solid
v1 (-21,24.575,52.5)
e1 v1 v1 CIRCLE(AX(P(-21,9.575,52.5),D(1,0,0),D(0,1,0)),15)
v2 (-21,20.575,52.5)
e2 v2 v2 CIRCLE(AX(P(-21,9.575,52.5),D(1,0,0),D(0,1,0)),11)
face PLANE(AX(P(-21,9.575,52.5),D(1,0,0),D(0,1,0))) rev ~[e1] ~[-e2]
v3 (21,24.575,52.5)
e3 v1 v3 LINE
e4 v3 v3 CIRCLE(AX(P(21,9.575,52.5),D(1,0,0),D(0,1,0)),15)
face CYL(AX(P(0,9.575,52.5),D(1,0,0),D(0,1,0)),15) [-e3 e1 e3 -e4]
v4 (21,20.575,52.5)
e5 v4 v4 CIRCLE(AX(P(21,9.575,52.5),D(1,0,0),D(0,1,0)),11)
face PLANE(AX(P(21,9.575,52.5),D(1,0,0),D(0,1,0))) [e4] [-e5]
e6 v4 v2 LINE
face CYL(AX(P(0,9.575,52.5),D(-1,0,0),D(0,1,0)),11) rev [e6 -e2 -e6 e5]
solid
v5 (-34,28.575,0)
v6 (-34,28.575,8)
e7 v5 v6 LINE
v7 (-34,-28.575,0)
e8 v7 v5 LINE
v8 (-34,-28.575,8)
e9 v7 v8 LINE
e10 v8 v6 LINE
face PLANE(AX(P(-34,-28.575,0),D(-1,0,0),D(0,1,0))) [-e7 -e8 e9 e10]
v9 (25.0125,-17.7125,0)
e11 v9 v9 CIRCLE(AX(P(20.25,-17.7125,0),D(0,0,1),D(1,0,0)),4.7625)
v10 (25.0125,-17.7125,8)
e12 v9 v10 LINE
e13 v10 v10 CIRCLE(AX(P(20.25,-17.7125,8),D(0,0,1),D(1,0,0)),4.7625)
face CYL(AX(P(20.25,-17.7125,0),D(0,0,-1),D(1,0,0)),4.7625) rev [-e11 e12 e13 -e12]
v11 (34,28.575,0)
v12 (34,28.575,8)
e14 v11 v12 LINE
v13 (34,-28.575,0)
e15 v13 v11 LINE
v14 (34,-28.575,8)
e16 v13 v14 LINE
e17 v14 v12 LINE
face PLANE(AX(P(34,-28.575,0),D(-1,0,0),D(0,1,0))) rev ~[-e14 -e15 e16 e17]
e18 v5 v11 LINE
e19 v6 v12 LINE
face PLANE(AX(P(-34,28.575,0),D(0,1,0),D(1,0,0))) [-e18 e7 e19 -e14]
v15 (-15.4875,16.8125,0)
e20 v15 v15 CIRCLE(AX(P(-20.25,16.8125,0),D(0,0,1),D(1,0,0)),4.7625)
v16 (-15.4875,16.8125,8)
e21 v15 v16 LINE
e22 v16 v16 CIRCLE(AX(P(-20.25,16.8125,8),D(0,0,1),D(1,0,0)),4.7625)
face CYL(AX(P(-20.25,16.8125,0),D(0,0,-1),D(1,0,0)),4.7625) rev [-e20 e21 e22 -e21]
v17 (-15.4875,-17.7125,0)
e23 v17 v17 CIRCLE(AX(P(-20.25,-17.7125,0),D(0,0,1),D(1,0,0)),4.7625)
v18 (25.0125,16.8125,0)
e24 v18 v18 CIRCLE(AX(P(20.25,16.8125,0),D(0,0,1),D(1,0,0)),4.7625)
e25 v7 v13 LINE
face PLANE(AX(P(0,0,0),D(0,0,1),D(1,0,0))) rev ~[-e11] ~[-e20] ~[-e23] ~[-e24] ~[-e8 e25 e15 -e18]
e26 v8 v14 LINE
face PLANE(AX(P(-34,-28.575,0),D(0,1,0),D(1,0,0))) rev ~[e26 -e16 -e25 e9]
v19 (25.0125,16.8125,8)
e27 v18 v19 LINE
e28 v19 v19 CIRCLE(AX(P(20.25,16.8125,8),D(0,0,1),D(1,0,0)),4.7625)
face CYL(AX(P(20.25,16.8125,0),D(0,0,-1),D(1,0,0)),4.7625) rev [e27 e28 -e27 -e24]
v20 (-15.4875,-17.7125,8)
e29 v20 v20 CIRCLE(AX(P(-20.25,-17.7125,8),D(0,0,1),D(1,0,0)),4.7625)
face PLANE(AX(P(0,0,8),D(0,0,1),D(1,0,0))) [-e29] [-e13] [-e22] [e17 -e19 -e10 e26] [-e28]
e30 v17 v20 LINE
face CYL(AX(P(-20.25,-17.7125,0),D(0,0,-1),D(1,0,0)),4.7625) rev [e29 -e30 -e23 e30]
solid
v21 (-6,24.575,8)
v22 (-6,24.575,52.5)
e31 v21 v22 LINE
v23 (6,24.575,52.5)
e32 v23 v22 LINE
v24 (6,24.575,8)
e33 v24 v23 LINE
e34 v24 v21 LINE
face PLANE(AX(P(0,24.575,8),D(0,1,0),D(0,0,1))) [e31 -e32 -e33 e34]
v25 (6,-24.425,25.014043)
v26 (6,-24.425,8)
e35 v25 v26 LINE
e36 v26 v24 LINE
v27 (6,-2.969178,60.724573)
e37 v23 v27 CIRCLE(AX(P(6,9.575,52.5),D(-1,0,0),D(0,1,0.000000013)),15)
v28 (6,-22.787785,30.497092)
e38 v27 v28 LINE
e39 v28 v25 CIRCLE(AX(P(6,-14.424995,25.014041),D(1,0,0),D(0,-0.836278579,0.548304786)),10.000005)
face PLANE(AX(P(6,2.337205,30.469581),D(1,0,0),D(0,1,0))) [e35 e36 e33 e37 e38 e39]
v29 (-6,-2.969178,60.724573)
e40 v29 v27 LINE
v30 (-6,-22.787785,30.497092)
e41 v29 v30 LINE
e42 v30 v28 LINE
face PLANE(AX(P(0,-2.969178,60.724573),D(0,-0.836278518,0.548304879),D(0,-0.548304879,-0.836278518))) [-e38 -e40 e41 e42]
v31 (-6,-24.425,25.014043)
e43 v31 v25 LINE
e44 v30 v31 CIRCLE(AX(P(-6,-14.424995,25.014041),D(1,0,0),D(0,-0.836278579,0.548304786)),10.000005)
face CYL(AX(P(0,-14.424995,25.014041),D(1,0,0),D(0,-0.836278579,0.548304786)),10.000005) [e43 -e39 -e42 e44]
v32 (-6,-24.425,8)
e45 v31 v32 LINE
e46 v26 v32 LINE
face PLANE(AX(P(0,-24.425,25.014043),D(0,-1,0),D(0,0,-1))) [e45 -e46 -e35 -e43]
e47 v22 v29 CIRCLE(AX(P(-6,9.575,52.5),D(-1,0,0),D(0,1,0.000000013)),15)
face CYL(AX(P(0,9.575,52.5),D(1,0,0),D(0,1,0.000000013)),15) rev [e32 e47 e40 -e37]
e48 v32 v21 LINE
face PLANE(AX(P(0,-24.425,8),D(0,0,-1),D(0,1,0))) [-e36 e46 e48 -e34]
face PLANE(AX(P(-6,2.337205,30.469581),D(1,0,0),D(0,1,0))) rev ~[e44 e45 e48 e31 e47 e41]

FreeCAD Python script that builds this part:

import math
import FreeCAD as App
import Part
import Sketcher

V = App.Vector

doc = App.newDocument("Part")
params = doc.addObject("Spreadsheet::Sheet", "Params")
for row, (alias, value) in enumerate([
    ("sketch1_width", "68 mm"),
    ("sketch1_height", "57.15 mm"),
    ("pad1_length", "8 mm"),
    ("sketch2_diameter", "30 mm"),
    ("sketch2_diameter2", "22 mm"),
    ("pad2_length", "42 mm"),
    ("sketch3_radius", "15 mm"),
    ("sketch3_width", "49 mm"),
    ("sketch3_height", "44.5 mm"),
    ("pad3_length", "12 mm"),
], start=1):
    params.set(f"A{row}", alias)
    params.set(f"B{row}", "=" + value)
    params.setAlias(f"B{row}", alias)

body = doc.addObject("PartDesign::Body", "Body")

# Sketch on XY plane
sketch1 = body.newObject("Sketcher::SketchObject", "Sketch")
sketch1.AttachmentSupport = (doc.getObject("XY_Plane"), [""])
sketch1.MapMode = "FlatFace"
sketch1.addGeometry([
    Part.LineSegment(V(-34, 28.575, 0), V(-34, -28.575, 0)),  # 0
    Part.LineSegment(V(-34, -28.575, 0), V(34, -28.575, 0)),  # 1
    Part.LineSegment(V(34, -28.575, 0), V(34, 28.575, 0)),  # 2
    Part.LineSegment(V(34, 28.575, 0), V(-34, 28.575, 0)),  # 3
    Part.Circle(V(-20.25, -17.7125, 0), V(0, 0, 1), 4.7625),  # 4
    Part.Circle(V(20.25, -17.7125, 0), V(0, 0, 1), 4.7625),  # 5
    Part.Circle(V(-20.25, 16.8125, 0), V(0, 0, 1), 4.7625),  # 6
    Part.Circle(V(20.25, 16.8125, 0), V(0, 0, 1), 4.7625),  # 7
], False)
sketch1.addConstraint([
    Sketcher.Constraint("Coincident", 0, 2, 1, 1),
    Sketcher.Constraint("Coincident", 1, 2, 2, 1),
    Sketcher.Constraint("Coincident", 2, 2, 3, 1),
    Sketcher.Constraint("Coincident", 3, 2, 0, 1),
    Sketcher.Constraint("Vertical", 0),
    Sketcher.Constraint("Horizontal", 1),
    Sketcher.Constraint("Vertical", 2),
    Sketcher.Constraint("Horizontal", 3),
    Sketcher.Constraint("Equal", 4, 5),
    Sketcher.Constraint("Equal", 5, 6),
    Sketcher.Constraint("Equal", 6, 7),
    Sketcher.Constraint("Symmetric", 0, 2, 2, 2, -1, 1),
    Sketcher.Constraint("Symmetric", 4, 3, 5, 3, -2),
    Sketcher.Constraint("Symmetric", 6, 3, 7, 3, -2),
    Sketcher.Constraint("Vertical", 4, 3, 6, 3),
    Sketcher.Constraint("DistanceX", 1, 1, 1, 2, 68.0),
    Sketcher.Constraint("Diameter", 4, 9.525),
    Sketcher.Constraint("DistanceY", 0, 2, 0, 1, 57.15),
    Sketcher.Constraint("DistanceX", 4, 3, 5, 3, 40.5),
    Sketcher.Constraint("DistanceY", 4, 3, 6, 3, 34.525),
    Sketcher.Constraint("DistanceY", 4, 3, -1, 1, 17.7125),
])
sketch1.setExpression("Constraints[15]", "Params.sketch1_width")
sketch1.setExpression("Constraints[17]", "Params.sketch1_height")
pad1 = body.newObject("PartDesign::Pad", "Pad")
pad1.Profile = sketch1
pad1.setExpression("Length", "Params.pad1_length")
body2 = doc.addObject("PartDesign::Body", "Body001")

# Sketch on YZ plane
sketch2 = body2.newObject("Sketcher::SketchObject", "Sketch001")
sketch2.AttachmentSupport = (doc.getObject("YZ_Plane001"), [""])
sketch2.MapMode = "FlatFace"
sketch2.addGeometry([
    Part.Circle(V(9.575, 52.5, 0), V(0, 0, 1), 15),
    Part.Circle(V(9.575, 52.5, 0), V(0, 0, 1), 11),
], False)
sketch2.addConstraint([
    Sketcher.Constraint("Coincident", 1, 3, 0, 3),
    Sketcher.Constraint("Diameter", 0, 30.0),
    Sketcher.Constraint("Diameter", 1, 22.0),
    Sketcher.Constraint("DistanceY", -1, 1, 0, 3, 52.5),
    Sketcher.Constraint("DistanceX", -1, 1, 0, 3, 9.575),
])
sketch2.setExpression("Constraints[1]", "Params.sketch2_diameter")
sketch2.setExpression("Constraints[2]", "Params.sketch2_diameter2")
pad2 = body2.newObject("PartDesign::Pad", "Pad001")
pad2.Profile = sketch2
pad2.setExpression("Length", "Params.pad2_length")
pad2.Midplane = True
body3 = doc.addObject("PartDesign::Body", "Body002")

# Sketch on YZ plane
sketch3 = body3.newObject("Sketcher::SketchObject", "Sketch002")
sketch3.AttachmentSupport = (doc.getObject("YZ_Plane002"), [""])
sketch3.MapMode = "FlatFace"
sketch3.addGeometry([
    Part.ArcOfCircle(Part.Circle(V(9.575, 52.5, 0), V(0, 0, 1), 15), math.radians(146.749202), math.radians(360.000001)),  # 0
    Part.LineSegment(V(-2.969178, 60.724573, 0), V(-22.787785, 30.497092, 0)),  # 1
    Part.ArcOfCircle(Part.Circle(V(-14.424995, 25.014042, 0), V(0, 0, 1), 10.000005), math.radians(146.749208), math.radians(179.999991)),  # 2
    Part.LineSegment(V(-24.425, 25.014043, 0), V(-24.425, 8, 0)),  # 3
    Part.LineSegment(V(-24.425, 8, 0), V(24.575, 8, 0)),  # 4
    Part.LineSegment(V(24.575, 8, 0), V(24.575, 52.5, 0)),  # 5
], False)
sketch3.addConstraint([
    Sketcher.Constraint("Tangent", 0, 1, 1, 1),
    Sketcher.Constraint("Tangent", 1, 2, 2, 1),
    Sketcher.Constraint("Tangent", 2, 2, 3, 1),
    Sketcher.Constraint("Coincident", 3, 2, 4, 1),
    Sketcher.Constraint("Coincident", 4, 2, 5, 1),
    Sketcher.Constraint("Tangent", 5, 2, 0, 2),
    Sketcher.Constraint("Vertical", 3),
    Sketcher.Constraint("Horizontal", 4),
    Sketcher.Constraint("Vertical", 5),
    Sketcher.Constraint("Radius", 0, 15.0),
    Sketcher.Constraint("DistanceX", 4, 1, 4, 2, 49.0),
    Sketcher.Constraint("DistanceY", 5, 1, 5, 2, 44.5),
    Sketcher.Constraint("DistanceY", -1, 1, 3, 2, 8.0),
    Sketcher.Constraint("DistanceX", -1, 1, 0, 3, 9.575),
    Sketcher.Constraint("Radius", 2, 10.000005),
    Sketcher.Constraint("Distance", 1, 36.145232),
])
sketch3.setExpression("Constraints[9]", "Params.sketch3_radius")
sketch3.setExpression("Constraints[10]", "Params.sketch3_width")
sketch3.setExpression("Constraints[11]", "Params.sketch3_height")
pad3 = body3.newObject("PartDesign::Pad", "Pad002")
pad3.Profile = sketch3
pad3.setExpression("Length", "Params.pad3_length")
pad3.Midplane = True

doc.recompute()
